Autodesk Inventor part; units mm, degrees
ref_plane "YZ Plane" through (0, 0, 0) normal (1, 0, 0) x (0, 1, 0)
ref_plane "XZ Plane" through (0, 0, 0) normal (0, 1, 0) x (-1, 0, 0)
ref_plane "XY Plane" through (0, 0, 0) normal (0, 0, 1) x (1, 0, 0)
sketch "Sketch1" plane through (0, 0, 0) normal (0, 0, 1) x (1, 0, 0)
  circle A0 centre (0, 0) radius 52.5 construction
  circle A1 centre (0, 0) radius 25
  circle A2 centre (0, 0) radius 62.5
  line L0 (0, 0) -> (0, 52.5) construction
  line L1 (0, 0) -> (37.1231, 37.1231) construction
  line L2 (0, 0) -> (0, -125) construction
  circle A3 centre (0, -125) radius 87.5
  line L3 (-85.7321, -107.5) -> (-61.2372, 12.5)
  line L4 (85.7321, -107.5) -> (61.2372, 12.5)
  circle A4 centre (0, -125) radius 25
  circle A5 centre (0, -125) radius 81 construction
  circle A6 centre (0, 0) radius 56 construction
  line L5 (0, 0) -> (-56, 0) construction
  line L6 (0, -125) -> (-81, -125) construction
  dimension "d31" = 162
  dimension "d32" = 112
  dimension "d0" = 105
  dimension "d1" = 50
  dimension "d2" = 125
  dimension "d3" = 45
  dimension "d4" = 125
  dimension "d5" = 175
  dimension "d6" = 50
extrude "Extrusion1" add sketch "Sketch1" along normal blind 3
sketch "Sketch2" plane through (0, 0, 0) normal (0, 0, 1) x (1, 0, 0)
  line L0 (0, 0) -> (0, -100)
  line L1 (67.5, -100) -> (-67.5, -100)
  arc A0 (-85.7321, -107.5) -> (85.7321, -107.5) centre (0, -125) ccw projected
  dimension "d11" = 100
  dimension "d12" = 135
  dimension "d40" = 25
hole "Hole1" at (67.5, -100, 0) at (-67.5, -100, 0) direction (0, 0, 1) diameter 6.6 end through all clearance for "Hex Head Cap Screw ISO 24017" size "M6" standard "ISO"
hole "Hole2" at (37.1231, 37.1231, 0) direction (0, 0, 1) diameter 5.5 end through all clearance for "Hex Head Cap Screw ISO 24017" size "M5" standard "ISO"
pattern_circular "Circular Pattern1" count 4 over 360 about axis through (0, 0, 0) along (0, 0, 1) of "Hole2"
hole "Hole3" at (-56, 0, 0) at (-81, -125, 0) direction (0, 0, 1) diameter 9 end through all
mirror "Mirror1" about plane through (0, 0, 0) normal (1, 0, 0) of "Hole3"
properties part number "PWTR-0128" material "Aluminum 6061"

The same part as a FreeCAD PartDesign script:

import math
import FreeCAD as App
import Part
import Sketcher

V = App.Vector

doc = App.newDocument("Part")
body = doc.addObject("PartDesign::Body", "Body")

# Sketch on XY plane
sketch1 = body.newObject("Sketcher::SketchObject", "Sketch")
sketch1.AttachmentSupport = (doc.getObject("XY_Plane"), [""])
sketch1.MapMode = "FlatFace"
sketch1.addGeometry([
    Part.ArcOfCircle(Part.Circle(V(0, 0, 0), V(0, 0, 1), 62), math.radians(12), math.radians(168)),  # 0
    Part.LineSegment(V(-61, 12, 0), V(-86, -108, 0)),  # 1
    Part.ArcOfCircle(Part.Circle(V(0, -125, 0), V(0, 0, 1), 88), math.radians(168), math.radians(372)),  # 2
    Part.LineSegment(V(86, -108, 0), V(61, 12, 0)),  # 3
    Part.Circle(V(0, 0, 0), V(0, 0, 1), 25),  # 4
    Part.Circle(V(0, -125, 0), V(0, 0, 1), 25),  # 5
], False)
sketch1.addConstraint([
    Sketcher.Constraint("Tangent", 0, 2, 1, 1),
    Sketcher.Constraint("Tangent", 1, 2, 2, 1),
    Sketcher.Constraint("Tangent", 2, 2, 3, 1),
    Sketcher.Constraint("Tangent", 3, 2, 0, 1),
    Sketcher.Constraint("Coincident", 0, 3, -1, 1),
    Sketcher.Constraint("Coincident", 4, 3, -1, 1),
    Sketcher.Constraint("Coincident", 5, 3, 2, 3),
    Sketcher.Constraint("Equal", 4, 5),
    Sketcher.Constraint("PointOnObject", 2, 3, -2),
    Sketcher.Constraint("Diameter", 4, 50.0),
    Sketcher.Constraint("Radius", 0, 62.5),
    Sketcher.Constraint("Radius", 2, 87.5),
    Sketcher.Constraint("DistanceY", 2, 3, -1, 1, 125.0),
])
pad1 = body.newObject("PartDesign::Pad", "Pad")
pad1.Profile = sketch1
pad1.Length = 3

# Sketch on XY plane
sketch2 = body.newObject("Sketcher::SketchObject", "Sketch001")
sketch2.AttachmentSupport = (doc.getObject("XY_Plane"), [""])
sketch2.MapMode = "FlatFace"
sketch2.addGeometry([
    Part.Circle(V(67.5, -100, 0), V(0, 0, 1), 3.3),
    Part.Circle(V(-67.5, -100, 0), V(0, 0, 1), 3.3),
], False)
sketch2.addConstraint([
    Sketcher.Constraint("Equal", 0, 1),
    Sketcher.Constraint("Symmetric", 0, 3, 1, 3, -2),
    Sketcher.Constraint("Diameter", 0, 6.6),
    Sketcher.Constraint("DistanceY", 0, 3, -1, 1, 100.0),
    Sketcher.Constraint("DistanceX", 1, 3, 0, 3, 135.0),
])
doc.recompute()
hole = body.newObject("PartDesign::Hole", "Hole")
hole.Profile = sketch2
hole.ThreadType = "None"
hole.Diameter = 6.6
hole.DepthType = "ThroughAll"
hole.Reversed = True

# Sketch on XY plane
sketch3 = body.newObject("Sketcher::SketchObject", "Sketch002")
sketch3.AttachmentSupport = (doc.getObject("XY_Plane"), [""])
sketch3.MapMode = "FlatFace"
sketch3.addGeometry(Part.Circle(V(37.1, 37.1, 0), V(0, 0, 1), 2.8), False)
sketch3.addConstraint([
    Sketcher.Constraint("Diameter", 0, 5.5),
    Sketcher.Constraint("DistanceX", -1, 1, 0, 3, 37.123),
    Sketcher.Constraint("DistanceY", -1, 1, 0, 3, 37.123),
])
doc.recompute()
hole2 = body.newObject("PartDesign::Hole", "Hole001")
hole2.Profile = sketch3
hole2.ThreadType = "None"
hole2.Diameter = 5.5
hole2.DepthType = "ThroughAll"
hole2.Reversed = True
doc.recompute()

polarpattern = body.newObject("PartDesign::PolarPattern", "PolarPattern")
polarpattern.Originals = [hole2]
polarpattern.Axis = (doc.getObject("Z_Axis"), [""])
polarpattern.Angle = 360
polarpattern.Occurrences = 4
body.Tip = polarpattern

# Sketch on XY plane
sketch4 = body.newObject("Sketcher::SketchObject", "Sketch003")
sketch4.AttachmentSupport = (doc.getObject("XY_Plane"), [""])
sketch4.MapMode = "FlatFace"
sketch4.addGeometry([
    Part.Circle(V(-56, 0, 0), V(0, 0, 1), 4.5),
    Part.Circle(V(-81, -125, 0), V(0, 0, 1), 4.5),
], False)
sketch4.addConstraint([
    Sketcher.Constraint("Equal", 0, 1),
    Sketcher.Constraint("PointOnObject", 0, 3, -1),
    Sketcher.Constraint("Diameter", 0, 9.0),
    Sketcher.Constraint("DistanceX", 0, 3, -1, 1, 56.0),
    Sketcher.Constraint("DistanceX", 1, 3, -1, 1, 81.0),
    Sketcher.Constraint("DistanceY", 1, 3, -1, 1, 125.0),
])
doc.recompute()
hole3 = body.newObject("PartDesign::Hole", "Hole002")
hole3.Profile = sketch4
hole3.ThreadType = "None"
hole3.Diameter = 9
hole3.DepthType = "ThroughAll"
hole3.Reversed = True
doc.recompute()

mirrored = body.newObject("PartDesign::Mirrored", "Mirrored")
mirrored.Originals = [hole3]
mirrored.MirrorPlane = (doc.getObject("YZ_Plane"), [""])
body.Tip = mirrored

doc.recompute()
